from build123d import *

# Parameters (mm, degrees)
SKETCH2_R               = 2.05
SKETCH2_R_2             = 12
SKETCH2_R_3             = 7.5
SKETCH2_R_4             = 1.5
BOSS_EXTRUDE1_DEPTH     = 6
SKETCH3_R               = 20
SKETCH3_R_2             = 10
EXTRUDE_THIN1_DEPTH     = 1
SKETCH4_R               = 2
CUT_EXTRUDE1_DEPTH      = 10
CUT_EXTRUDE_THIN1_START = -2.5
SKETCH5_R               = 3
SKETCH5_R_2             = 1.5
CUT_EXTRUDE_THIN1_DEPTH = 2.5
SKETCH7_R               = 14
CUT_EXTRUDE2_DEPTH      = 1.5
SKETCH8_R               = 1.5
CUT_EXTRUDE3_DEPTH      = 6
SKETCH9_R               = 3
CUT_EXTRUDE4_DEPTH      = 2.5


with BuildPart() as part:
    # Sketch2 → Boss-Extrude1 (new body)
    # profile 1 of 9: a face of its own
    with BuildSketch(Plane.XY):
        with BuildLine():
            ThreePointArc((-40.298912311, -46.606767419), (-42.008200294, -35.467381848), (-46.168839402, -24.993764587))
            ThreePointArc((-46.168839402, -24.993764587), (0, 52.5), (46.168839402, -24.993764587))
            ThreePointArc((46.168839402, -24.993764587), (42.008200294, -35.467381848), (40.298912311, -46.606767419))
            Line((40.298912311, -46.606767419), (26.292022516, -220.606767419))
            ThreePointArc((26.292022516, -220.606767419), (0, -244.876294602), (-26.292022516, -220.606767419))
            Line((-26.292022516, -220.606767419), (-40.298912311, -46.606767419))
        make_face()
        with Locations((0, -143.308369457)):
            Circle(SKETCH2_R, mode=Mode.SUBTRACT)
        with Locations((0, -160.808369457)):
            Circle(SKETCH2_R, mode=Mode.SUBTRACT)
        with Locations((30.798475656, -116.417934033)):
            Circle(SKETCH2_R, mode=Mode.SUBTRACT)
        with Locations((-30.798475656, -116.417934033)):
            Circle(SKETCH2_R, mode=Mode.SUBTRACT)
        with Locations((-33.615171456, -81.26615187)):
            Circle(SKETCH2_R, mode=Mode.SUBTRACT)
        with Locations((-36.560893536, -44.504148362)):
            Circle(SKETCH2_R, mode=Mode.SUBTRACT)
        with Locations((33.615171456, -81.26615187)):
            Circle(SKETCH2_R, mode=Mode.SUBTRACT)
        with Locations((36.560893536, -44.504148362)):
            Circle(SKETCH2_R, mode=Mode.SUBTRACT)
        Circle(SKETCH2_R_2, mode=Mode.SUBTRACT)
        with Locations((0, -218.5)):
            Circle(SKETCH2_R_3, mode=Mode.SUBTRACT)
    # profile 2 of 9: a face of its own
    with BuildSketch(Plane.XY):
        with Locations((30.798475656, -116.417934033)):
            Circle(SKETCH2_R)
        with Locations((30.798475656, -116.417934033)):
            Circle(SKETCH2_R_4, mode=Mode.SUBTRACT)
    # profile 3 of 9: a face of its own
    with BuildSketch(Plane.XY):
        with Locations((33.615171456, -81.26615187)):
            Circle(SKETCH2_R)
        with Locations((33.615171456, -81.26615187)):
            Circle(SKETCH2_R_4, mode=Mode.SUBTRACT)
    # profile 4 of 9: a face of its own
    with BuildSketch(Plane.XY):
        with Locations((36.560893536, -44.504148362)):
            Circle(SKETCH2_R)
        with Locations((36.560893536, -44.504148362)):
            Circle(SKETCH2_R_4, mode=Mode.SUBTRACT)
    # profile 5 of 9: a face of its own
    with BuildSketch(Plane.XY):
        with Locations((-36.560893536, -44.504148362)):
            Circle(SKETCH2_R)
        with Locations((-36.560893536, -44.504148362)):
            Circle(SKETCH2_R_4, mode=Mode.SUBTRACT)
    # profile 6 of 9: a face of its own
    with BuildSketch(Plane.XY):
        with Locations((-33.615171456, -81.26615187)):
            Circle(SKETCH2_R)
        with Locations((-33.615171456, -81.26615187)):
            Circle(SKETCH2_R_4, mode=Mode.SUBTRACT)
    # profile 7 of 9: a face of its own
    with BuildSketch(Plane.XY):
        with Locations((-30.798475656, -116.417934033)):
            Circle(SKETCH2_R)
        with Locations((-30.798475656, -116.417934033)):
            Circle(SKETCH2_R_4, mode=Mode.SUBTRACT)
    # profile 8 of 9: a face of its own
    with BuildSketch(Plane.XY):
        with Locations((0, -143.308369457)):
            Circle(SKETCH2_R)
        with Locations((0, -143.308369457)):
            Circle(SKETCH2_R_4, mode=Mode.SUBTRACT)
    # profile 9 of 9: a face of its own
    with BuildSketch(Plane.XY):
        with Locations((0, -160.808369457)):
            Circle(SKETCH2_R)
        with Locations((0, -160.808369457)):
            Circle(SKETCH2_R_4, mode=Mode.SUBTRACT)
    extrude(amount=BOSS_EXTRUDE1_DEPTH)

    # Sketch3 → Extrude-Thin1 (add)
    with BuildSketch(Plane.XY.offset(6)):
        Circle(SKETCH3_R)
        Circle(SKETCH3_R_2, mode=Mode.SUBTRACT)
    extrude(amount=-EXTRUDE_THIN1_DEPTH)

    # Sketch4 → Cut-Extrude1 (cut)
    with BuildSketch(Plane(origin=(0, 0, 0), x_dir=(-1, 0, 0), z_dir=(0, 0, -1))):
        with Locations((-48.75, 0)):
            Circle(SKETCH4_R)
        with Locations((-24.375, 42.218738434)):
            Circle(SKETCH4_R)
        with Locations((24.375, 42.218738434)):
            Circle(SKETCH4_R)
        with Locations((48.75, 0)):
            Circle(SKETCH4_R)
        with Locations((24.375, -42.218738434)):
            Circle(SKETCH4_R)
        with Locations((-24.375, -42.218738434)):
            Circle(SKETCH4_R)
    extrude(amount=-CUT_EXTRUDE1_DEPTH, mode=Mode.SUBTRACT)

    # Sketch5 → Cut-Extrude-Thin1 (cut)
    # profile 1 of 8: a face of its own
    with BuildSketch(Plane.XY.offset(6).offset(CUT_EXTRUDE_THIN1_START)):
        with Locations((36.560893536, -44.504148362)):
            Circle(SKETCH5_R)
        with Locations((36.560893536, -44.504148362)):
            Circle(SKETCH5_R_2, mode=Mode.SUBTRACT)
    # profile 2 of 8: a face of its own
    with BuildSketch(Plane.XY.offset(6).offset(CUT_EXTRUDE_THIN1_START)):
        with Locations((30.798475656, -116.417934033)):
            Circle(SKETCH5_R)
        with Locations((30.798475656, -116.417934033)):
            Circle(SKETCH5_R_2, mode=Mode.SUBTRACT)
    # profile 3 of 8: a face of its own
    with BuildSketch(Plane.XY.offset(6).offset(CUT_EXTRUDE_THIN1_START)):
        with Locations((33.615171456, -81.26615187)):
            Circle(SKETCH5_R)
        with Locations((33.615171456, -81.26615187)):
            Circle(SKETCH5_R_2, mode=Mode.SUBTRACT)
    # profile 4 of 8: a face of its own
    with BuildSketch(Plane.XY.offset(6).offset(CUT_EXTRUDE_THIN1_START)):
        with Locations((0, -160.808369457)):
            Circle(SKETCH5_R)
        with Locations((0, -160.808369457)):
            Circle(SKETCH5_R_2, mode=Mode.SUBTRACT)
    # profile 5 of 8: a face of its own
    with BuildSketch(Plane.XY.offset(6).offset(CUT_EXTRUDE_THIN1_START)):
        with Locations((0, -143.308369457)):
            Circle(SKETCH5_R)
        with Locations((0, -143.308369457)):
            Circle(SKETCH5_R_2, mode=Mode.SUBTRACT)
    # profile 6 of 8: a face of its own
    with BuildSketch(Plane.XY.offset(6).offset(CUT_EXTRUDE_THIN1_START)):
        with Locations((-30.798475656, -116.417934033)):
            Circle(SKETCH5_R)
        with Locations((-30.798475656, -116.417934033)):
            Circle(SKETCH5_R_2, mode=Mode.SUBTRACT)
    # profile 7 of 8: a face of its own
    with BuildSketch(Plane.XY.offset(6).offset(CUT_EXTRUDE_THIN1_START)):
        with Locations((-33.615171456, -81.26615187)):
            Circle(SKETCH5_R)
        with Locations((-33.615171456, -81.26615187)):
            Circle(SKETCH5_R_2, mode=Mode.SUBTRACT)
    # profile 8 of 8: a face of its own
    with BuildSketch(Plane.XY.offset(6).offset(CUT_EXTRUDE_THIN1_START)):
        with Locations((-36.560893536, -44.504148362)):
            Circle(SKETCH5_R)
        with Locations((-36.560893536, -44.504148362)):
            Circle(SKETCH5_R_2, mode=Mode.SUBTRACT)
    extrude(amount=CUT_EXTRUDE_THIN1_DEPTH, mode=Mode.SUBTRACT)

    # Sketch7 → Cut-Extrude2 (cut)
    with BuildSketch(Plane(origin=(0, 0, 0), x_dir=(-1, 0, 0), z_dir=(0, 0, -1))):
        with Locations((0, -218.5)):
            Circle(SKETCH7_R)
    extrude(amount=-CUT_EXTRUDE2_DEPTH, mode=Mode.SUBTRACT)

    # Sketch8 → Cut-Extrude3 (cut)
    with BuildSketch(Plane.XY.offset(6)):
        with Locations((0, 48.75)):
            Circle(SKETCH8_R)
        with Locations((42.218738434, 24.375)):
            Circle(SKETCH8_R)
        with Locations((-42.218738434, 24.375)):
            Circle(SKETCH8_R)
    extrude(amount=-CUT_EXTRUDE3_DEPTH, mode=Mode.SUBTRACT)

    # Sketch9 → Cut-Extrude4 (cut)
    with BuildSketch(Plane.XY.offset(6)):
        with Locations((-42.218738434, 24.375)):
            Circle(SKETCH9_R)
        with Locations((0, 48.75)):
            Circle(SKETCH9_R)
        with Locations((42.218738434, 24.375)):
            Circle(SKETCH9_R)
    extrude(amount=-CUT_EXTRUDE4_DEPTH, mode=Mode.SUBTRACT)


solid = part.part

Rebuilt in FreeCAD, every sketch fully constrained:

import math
import FreeCAD as App
import Part
import Sketcher

V = App.Vector

doc = App.newDocument("Part")
body = doc.addObject("PartDesign::Body", "Body")

sketch1 = body.newObject("Sketcher::SketchObject", "Sketch")
sketch1.AttachmentSupport = (doc.getObject("XY_Plane"), [""])
sketch1.MapMode = "FlatFace"
sketch1.addGeometry(Part.ArcOfCircle(Part.Circle(V(-90.260265, -48.572275, 0), V(0, 0, 1), 50), math.radians(2.252887), math.radians(28.136271)), False)
sketch1.addGeometry(Part.LineSegment(V(-40.298912, -46.606767, 0), V(-26.292023, -220.606767, 0)), False)
sketch1.addGeometry(Part.ArcOfCircle(Part.Circle(V(0, -218.5, 0), V(0, 0, 1), 26.376295), math.radians(-175.418704), math.radians(-4.581296)), False)
sketch1.addGeometry(Part.LineSegment(V(26.292023, -220.606767, 0), V(40.298912, -46.606767, 0)), False)
sketch1.addGeometry(Part.ArcOfCircle(Part.Circle(V(90.260265, -48.572275, 0), V(0, 0, 1), 50), math.radians(151.863729), math.radians(177.747113)), False)
sketch1.addGeometry(Part.ArcOfCircle(Part.Circle(V(0, 0, 0), V(0, 0, 1), 52.5), math.radians(-28.429152), math.radians(208.429152)), False)
sketch1.addGeometry(Part.Circle(V(0, -218.5, 0), V(0, 0, 1), 7.5), False)
sketch1.addGeometry(Part.Circle(V(0, 0, 0), V(0, 0, 1), 12), False)
sketch1.addGeometry(Part.Circle(V(30.798476, -116.417934, 0), V(0, 0, 1), 1.5), False)
sketch1.addGeometry(Part.Circle(V(0, -160.808369, 0), V(0, 0, 1), 1.5), False)
sketch1.addGeometry(Part.Circle(V(0, -143.308369, 0), V(0, 0, 1), 1.5), False)
sketch1.addGeometry(Part.Circle(V(-30.798476, -116.417934, 0), V(0, 0, 1), 1.5), False)
sketch1.addGeometry(Part.Circle(V(33.615171, -81.266152, 0), V(0, 0, 1), 1.5), False)
sketch1.addGeometry(Part.Circle(V(36.560894, -44.504148, 0), V(0, 0, 1), 1.5), False)
sketch1.addGeometry(Part.Circle(V(-33.615171, -81.266152, 0), V(0, 0, 1), 1.5), False)
sketch1.addGeometry(Part.Circle(V(-36.560894, -44.504148, 0), V(0, 0, 1), 1.5), False)
sketch1.addConstraint(Sketcher.Constraint("Coincident", 0, 1, 1, 1))
sketch1.addConstraint(Sketcher.Constraint("Coincident", 1, 2, 2, 1))
sketch1.addConstraint(Sketcher.Constraint("Coincident", 2, 2, 3, 1))
sketch1.addConstraint(Sketcher.Constraint("Coincident", 3, 2, 4, 2))
sketch1.addConstraint(Sketcher.Constraint("Coincident", 4, 1, 5, 1))
sketch1.addConstraint(Sketcher.Constraint("Coincident", 5, 2, 0, 2))
sketch1.addConstraint(Sketcher.Constraint("Coincident", 5, 3, -1, 1))
sketch1.addConstraint(Sketcher.Constraint("Coincident", 7, 3, -1, 1))
sketch1.addConstraint(Sketcher.Constraint("Coincident", 6, 3, 2, 3))
sketch1.addConstraint(Sketcher.Constraint("Equal", 0, 4))
sketch1.addConstraint(Sketcher.Constraint("Equal", 8, 9))
sketch1.addConstraint(Sketcher.Constraint("Equal", 9, 10))
sketch1.addConstraint(Sketcher.Constraint("Equal", 10, 11))
sketch1.addConstraint(Sketcher.Constraint("Equal", 11, 12))
sketch1.addConstraint(Sketcher.Constraint("Equal", 12, 13))
sketch1.addConstraint(Sketcher.Constraint("Equal", 13, 14))
sketch1.addConstraint(Sketcher.Constraint("Equal", 14, 15))
sketch1.addConstraint(Sketcher.Constraint("Symmetric", 0, 3, 4, 3, -2))
sketch1.addConstraint(Sketcher.Constraint("Symmetric", 8, 3, 11, 3, -2))
sketch1.addConstraint(Sketcher.Constraint("Symmetric", 12, 3, 14, 3, -2))
sketch1.addConstraint(Sketcher.Constraint("Symmetric", 13, 3, 15, 3, -2))
sketch1.addConstraint(Sketcher.Constraint("Symmetric", 1, 2, 2, 2, -2))
sketch1.addConstraint(Sketcher.Constraint("PointOnObject", 9, 3, -2))
sketch1.addConstraint(Sketcher.Constraint("PointOnObject", 10, 3, -2))
sketch1.addConstraint(Sketcher.Constraint("Horizontal", 0, 1, 3, 2))
sketch1.addConstraint(Sketcher.Constraint("Diameter", 6, 15.0))
sketch1.addConstraint(Sketcher.Constraint("Diameter", 7, 24.0))
sketch1.addConstraint(Sketcher.Constraint("Diameter", 8, 3.0))
sketch1.addConstraint(Sketcher.Constraint("Radius", 0, 50.0))
sketch1.addConstraint(Sketcher.Constraint("Radius", 5, 52.5))
sketch1.addConstraint(Sketcher.Constraint("DistanceY", 2, 3, -1, 1, 218.5))
sketch1.addConstraint(Sketcher.Constraint("DistanceY", 9, 3, 10, 3, 17.5))
sketch1.addConstraint(Sketcher.Constraint("Radius", 2, 26.376295))
sketch1.addConstraint(Sketcher.Constraint("DistanceY", 9, 3, -1, 1, 160.808369))
sketch1.addConstraint(Sketcher.Constraint("DistanceX", -1, 1, 12, 3, 33.615171))
sketch1.addConstraint(Sketcher.Constraint("DistanceY", 12, 3, -1, 1, 81.266152))
sketch1.addConstraint(Sketcher.Constraint("DistanceY", 13, 3, -1, 1, 44.504148))
sketch1.addConstraint(Sketcher.Constraint("DistanceX", -1, 1, 4, 1, 46.168839))
sketch1.addConstraint(Sketcher.Constraint("DistanceX", 0, 3, 4, 3, 180.52053))
sketch1.addConstraint(Sketcher.Constraint("DistanceX", 8, 3, 4, 3, 59.461789))
sketch1.addConstraint(Sketcher.Constraint("DistanceY", 8, 3, 4, 3, 67.845659))
sketch1.addConstraint(Sketcher.Constraint("DistanceX", 13, 3, 4, 3, 53.699372))
sketch1.addConstraint(Sketcher.Constraint("DistanceX", 0, 1, 15, 3, 3.738019))
sketch1.addConstraint(Sketcher.Constraint("Distance", 1, 174.562862))
pad1 = body.newObject("PartDesign::Pad", "Pad")
pad1.Profile = sketch1
pad1.Length = 6

sketch2 = body.newObject("Sketcher::SketchObject", "Sketch001")
sketch2.AttachmentSupport = (doc.getObject("XY_Plane"), [""])
sketch2.MapMode = "FlatFace"
sketch2.AttachmentOffset = App.Placement(V(0, 0, 6), App.Rotation())
sketch2.addGeometry(Part.Circle(V(0, 0, 0), V(0, 0, 1), 20), False)
sketch2.addGeometry(Part.Circle(V(0, 0, 0), V(0, 0, 1), 10), False)
sketch2.addConstraint(Sketcher.Constraint("Coincident", 0, 3, -1, 1))
sketch2.addConstraint(Sketcher.Constraint("Coincident", 1, 3, -1, 1))
sketch2.addConstraint(Sketcher.Constraint("Diameter", 0, 40.0))
sketch2.addConstraint(Sketcher.Constraint("Diameter", 1, 20.0))
pad2 = body.newObject("PartDesign::Pad", "Pad001")
pad2.Profile = sketch2
pad2.Length = 1
pad2.Reversed = True

sketch3 = body.newObject("Sketcher::SketchObject", "Sketch002")
sketch3.AttachmentSupport = (doc.getObject("XY_Plane"), [""])
sketch3.MapMode = "FlatFace"
sketch3.addGeometry(Part.Circle(V(48.75, 0, 0), V(0, 0, 1), 2), False)
sketch3.addGeometry(Part.Circle(V(24.375, 42.218738, 0), V(0, 0, 1), 2), False)
sketch3.addGeometry(Part.Circle(V(-24.375, 42.218738, 0), V(0, 0, 1), 2), False)
sketch3.addGeometry(Part.Circle(V(-48.75, 0, 0), V(0, 0, 1), 2), False)
sketch3.addGeometry(Part.Circle(V(-24.375, -42.218738, 0), V(0, 0, 1), 2), False)
sketch3.addGeometry(Part.Circle(V(24.375, -42.218738, 0), V(0, 0, 1), 2), False)
sketch3.addConstraint(Sketcher.Constraint("Equal", 0, 1))
sketch3.addConstraint(Sketcher.Constraint("Equal", 1, 2))
sketch3.addConstraint(Sketcher.Constraint("Equal", 2, 3))
sketch3.addConstraint(Sketcher.Constraint("Equal", 3, 4))
sketch3.addConstraint(Sketcher.Constraint("Equal", 4, 5))
sketch3.addConstraint(Sketcher.Constraint("Symmetric", 0, 3, 3, 3, -1, 1))
sketch3.addConstraint(Sketcher.Constraint("Symmetric", 1, 3, 4, 3, -1, 1))
sketch3.addConstraint(Sketcher.Constraint("Symmetric", 2, 3, 5, 3, -1, 1))
sketch3.addConstraint(Sketcher.Constraint("Symmetric", 1, 3, 2, 3, -2))
sketch3.addConstraint(Sketcher.Constraint("PointOnObject", 0, 3, -1))
sketch3.addConstraint(Sketcher.Constraint("Diameter", 0, 4.0))
sketch3.addConstraint(Sketcher.Constraint("DistanceX", 3, 3, 0, 3, 97.5))
sketch3.addConstraint(Sketcher.Constraint("DistanceX", 2, 3, 1, 3, 48.75))
sketch3.addConstraint(Sketcher.Constraint("DistanceY", -1, 1, 1, 3, 42.218738))
pocket1 = body.newObject("PartDesign::Pocket", "Pocket")
pocket1.Profile = sketch3
pocket1.Length = 10
pocket1.Reversed = True

sketch4 = body.newObject("Sketcher::SketchObject", "Sketch003")
sketch4.AttachmentSupport = (doc.getObject("XY_Plane"), [""])
sketch4.MapMode = "FlatFace"
sketch4.AttachmentOffset = App.Placement(V(0, 0, 3.5), App.Rotation())
sketch4.addGeometry(Part.Circle(V(36.560894, -44.504148, 0), V(0, 0, 1), 3), False)
sketch4.addGeometry(Part.Circle(V(36.560894, -44.504148, 0), V(0, 0, 1), 1.5), False)
sketch4.addGeometry(Part.Circle(V(30.798476, -116.417934, 0), V(0, 0, 1), 3), False)
sketch4.addGeometry(Part.Circle(V(30.798476, -116.417934, 0), V(0, 0, 1), 1.5), False)
sketch4.addGeometry(Part.Circle(V(33.615171, -81.266152, 0), V(0, 0, 1), 3), False)
sketch4.addGeometry(Part.Circle(V(33.615171, -81.266152, 0), V(0, 0, 1), 1.5), False)
sketch4.addGeometry(Part.Circle(V(0, -160.808369, 0), V(0, 0, 1), 3), False)
sketch4.addGeometry(Part.Circle(V(0, -160.808369, 0), V(0, 0, 1), 1.5), False)
sketch4.addGeometry(Part.Circle(V(0, -143.308369, 0), V(0, 0, 1), 3), False)
sketch4.addGeometry(Part.Circle(V(0, -143.308369, 0), V(0, 0, 1), 1.5), False)
sketch4.addGeometry(Part.Circle(V(-30.798476, -116.417934, 0), V(0, 0, 1), 3), False)
sketch4.addGeometry(Part.Circle(V(-30.798476, -116.417934, 0), V(0, 0, 1), 1.5), False)
sketch4.addGeometry(Part.Circle(V(-33.615171, -81.266152, 0), V(0, 0, 1), 3), False)
sketch4.addGeometry(Part.Circle(V(-33.615171, -81.266152, 0), V(0, 0, 1), 1.5), False)
sketch4.addGeometry(Part.Circle(V(-36.560894, -44.504148, 0), V(0, 0, 1), 3), False)
sketch4.addGeometry(Part.Circle(V(-36.560894, -44.504148, 0), V(0, 0, 1), 1.5), False)
sketch4.addConstraint(Sketcher.Constraint("Coincident", 1, 3, 0, 3))
sketch4.addConstraint(Sketcher.Constraint("Coincident", 3, 3, 2, 3))
sketch4.addConstraint(Sketcher.Constraint("Coincident", 5, 3, 4, 3))
sketch4.addConstraint(Sketcher.Constraint("Coincident", 7, 3, 6, 3))
sketch4.addConstraint(Sketcher.Constraint("Coincident", 9, 3, 8, 3))
sketch4.addConstraint(Sketcher.Constraint("Coincident", 11, 3, 10, 3))
sketch4.addConstraint(Sketcher.Constraint("Coincident", 13, 3, 12, 3))
sketch4.addConstraint(Sketcher.Constraint("Coincident", 15, 3, 14, 3))
sketch4.addConstraint(Sketcher.Constraint("Equal", 0, 2))
sketch4.addConstraint(Sketcher.Constraint("Equal", 1, 3))
sketch4.addConstraint(Sketcher.Constraint("Equal", 2, 4))
sketch4.addConstraint(Sketcher.Constraint("Equal", 3, 5))
sketch4.addConstraint(Sketcher.Constraint("Equal", 4, 6))
sketch4.addConstraint(Sketcher.Constraint("Equal", 5, 7))
sketch4.addConstraint(Sketcher.Constraint("Equal", 6, 8))
sketch4.addConstraint(Sketcher.Constraint("Equal", 7, 9))
sketch4.addConstraint(Sketcher.Constraint("Equal", 8, 10))
sketch4.addConstraint(Sketcher.Constraint("Equal", 9, 11))
sketch4.addConstraint(Sketcher.Constraint("Equal", 10, 12))
sketch4.addConstraint(Sketcher.Constraint("Equal", 11, 13))
sketch4.addConstraint(Sketcher.Constraint("Equal", 12, 14))
sketch4.addConstraint(Sketcher.Constraint("Equal", 13, 15))
sketch4.addConstraint(Sketcher.Constraint("Symmetric", 2, 3, 10, 3, -2))
sketch4.addConstraint(Sketcher.Constraint("Symmetric", 4, 3, 12, 3, -2))
sketch4.addConstraint(Sketcher.Constraint("Symmetric", 0, 3, 14, 3, -2))
sketch4.addConstraint(Sketcher.Constraint("PointOnObject", 6, 3, -2))
sketch4.addConstraint(Sketcher.Constraint("PointOnObject", 8, 3, -2))
sketch4.addConstraint(Sketcher.Constraint("Diameter", 0, 6.0))
sketch4.addConstraint(Sketcher.Constraint("Diameter", 1, 3.0))
sketch4.addConstraint(Sketcher.Constraint("DistanceY", 6, 3, 8, 3, 17.5))
sketch4.addConstraint(Sketcher.Constraint("DistanceY", 0, 3, -1, 1, 44.504148))
sketch4.addConstraint(Sketcher.Constraint("DistanceX", -1, 1, 4, 3, 33.615171))
sketch4.addConstraint(Sketcher.Constraint("DistanceY", 4, 3, -1, 1, 81.266152))
sketch4.addConstraint(Sketcher.Constraint("DistanceY", 6, 3, -1, 1, 160.808369))
sketch4.addConstraint(Sketcher.Constraint("DistanceX", 10, 3, 2, 3, 61.596951))
sketch4.addConstraint(Sketcher.Constraint("DistanceX", -1, 1, 0, 3, 36.560894))
sketch4.addConstraint(Sketcher.Constraint("DistanceY", 2, 3, -1, 1, 116.417934))
pocket2 = body.newObject("PartDesign::Pocket", "Pocket001")
pocket2.Profile = sketch4
pocket2.Length = 2.5
pocket2.Reversed = True

sketch5 = body.newObject("Sketcher::SketchObject", "Sketch004")
sketch5.AttachmentSupport = (doc.getObject("XY_Plane"), [""])
sketch5.MapMode = "FlatFace"
sketch5.addGeometry(Part.Circle(V(0, -218.5, 0), V(0, 0, 1), 14), False)
sketch5.addConstraint(Sketcher.Constraint("PointOnObject", 0, 3, -2))
sketch5.addConstraint(Sketcher.Constraint("Diameter", 0, 28.0))
sketch5.addConstraint(Sketcher.Constraint("DistanceY", 0, 3, -1, 1, 218.5))
pocket3 = body.newObject("PartDesign::Pocket", "Pocket002")
pocket3.Profile = sketch5
pocket3.Length = 1.5
pocket3.Reversed = True

sketch6 = body.newObject("Sketcher::SketchObject", "Sketch005")
sketch6.AttachmentSupport = (doc.getObject("XY_Plane"), [""])
sketch6.MapMode = "FlatFace"
sketch6.AttachmentOffset = App.Placement(V(0, 0, 6), App.Rotation())
sketch6.addGeometry(Part.Circle(V(0, 48.75, 0), V(0, 0, 1), 1.5), False)
sketch6.addGeometry(Part.Circle(V(42.218738, 24.375, 0), V(0, 0, 1), 1.5), False)
sketch6.addGeometry(Part.Circle(V(-42.218738, 24.375, 0), V(0, 0, 1), 1.5), False)
sketch6.addConstraint(Sketcher.Constraint("Equal", 0, 1))
sketch6.addConstraint(Sketcher.Constraint("Equal", 1, 2))
sketch6.addConstraint(Sketcher.Constraint("Symmetric", 1, 3, 2, 3, -2))
sketch6.addConstraint(Sketcher.Constraint("PointOnObject", 0, 3, -2))
sketch6.addConstraint(Sketcher.Constraint("Diameter", 0, 3.0))
sketch6.addConstraint(Sketcher.Constraint("DistanceY", -1, 1, 0, 3, 48.75))
sketch6.addConstraint(Sketcher.Constraint("DistanceY", -1, 1, 1, 3, 24.375))
sketch6.addConstraint(Sketcher.Constraint("DistanceX", -1, 1, 1, 3, 42.218738))
pocket4 = body.newObject("PartDesign::Pocket", "Pocket003")
pocket4.Profile = sketch6
pocket4.Length = 6

sketch7 = body.newObject("Sketcher::SketchObject", "Sketch006")
sketch7.AttachmentSupport = (doc.getObject("XY_Plane"), [""])
sketch7.MapMode = "FlatFace"
sketch7.AttachmentOffset = App.Placement(V(0, 0, 6), App.Rotation())
sketch7.addGeometry(Part.Circle(V(-42.218738, 24.375, 0), V(0, 0, 1), 3), False)
sketch7.addGeometry(Part.Circle(V(0, 48.75, 0), V(0, 0, 1), 3), False)
sketch7.addGeometry(Part.Circle(V(42.218738, 24.375, 0), V(0, 0, 1), 3), False)
sketch7.addConstraint(Sketcher.Constraint("Equal", 0, 1))
sketch7.addConstraint(Sketcher.Constraint("Equal", 1, 2))
sketch7.addConstraint(Sketcher.Constraint("Symmetric", 0, 3, 2, 3, -2))
sketch7.addConstraint(Sketcher.Constraint("PointOnObject", 1, 3, -2))
sketch7.addConstraint(Sketcher.Constraint("Diameter", 0, 6.0))
sketch7.addConstraint(Sketcher.Constraint("DistanceY", -1, 1, 1, 3, 48.75))
sketch7.addConstraint(Sketcher.Constraint("DistanceY", -1, 1, 0, 3, 24.375))
sketch7.addConstraint(Sketcher.Constraint("DistanceX", 0, 3, -1, 1, 42.218738))
pocket5 = body.newObject("PartDesign::Pocket", "Pocket004")
pocket5.Profile = sketch7
pocket5.Length = 2.5

doc.recompute()
